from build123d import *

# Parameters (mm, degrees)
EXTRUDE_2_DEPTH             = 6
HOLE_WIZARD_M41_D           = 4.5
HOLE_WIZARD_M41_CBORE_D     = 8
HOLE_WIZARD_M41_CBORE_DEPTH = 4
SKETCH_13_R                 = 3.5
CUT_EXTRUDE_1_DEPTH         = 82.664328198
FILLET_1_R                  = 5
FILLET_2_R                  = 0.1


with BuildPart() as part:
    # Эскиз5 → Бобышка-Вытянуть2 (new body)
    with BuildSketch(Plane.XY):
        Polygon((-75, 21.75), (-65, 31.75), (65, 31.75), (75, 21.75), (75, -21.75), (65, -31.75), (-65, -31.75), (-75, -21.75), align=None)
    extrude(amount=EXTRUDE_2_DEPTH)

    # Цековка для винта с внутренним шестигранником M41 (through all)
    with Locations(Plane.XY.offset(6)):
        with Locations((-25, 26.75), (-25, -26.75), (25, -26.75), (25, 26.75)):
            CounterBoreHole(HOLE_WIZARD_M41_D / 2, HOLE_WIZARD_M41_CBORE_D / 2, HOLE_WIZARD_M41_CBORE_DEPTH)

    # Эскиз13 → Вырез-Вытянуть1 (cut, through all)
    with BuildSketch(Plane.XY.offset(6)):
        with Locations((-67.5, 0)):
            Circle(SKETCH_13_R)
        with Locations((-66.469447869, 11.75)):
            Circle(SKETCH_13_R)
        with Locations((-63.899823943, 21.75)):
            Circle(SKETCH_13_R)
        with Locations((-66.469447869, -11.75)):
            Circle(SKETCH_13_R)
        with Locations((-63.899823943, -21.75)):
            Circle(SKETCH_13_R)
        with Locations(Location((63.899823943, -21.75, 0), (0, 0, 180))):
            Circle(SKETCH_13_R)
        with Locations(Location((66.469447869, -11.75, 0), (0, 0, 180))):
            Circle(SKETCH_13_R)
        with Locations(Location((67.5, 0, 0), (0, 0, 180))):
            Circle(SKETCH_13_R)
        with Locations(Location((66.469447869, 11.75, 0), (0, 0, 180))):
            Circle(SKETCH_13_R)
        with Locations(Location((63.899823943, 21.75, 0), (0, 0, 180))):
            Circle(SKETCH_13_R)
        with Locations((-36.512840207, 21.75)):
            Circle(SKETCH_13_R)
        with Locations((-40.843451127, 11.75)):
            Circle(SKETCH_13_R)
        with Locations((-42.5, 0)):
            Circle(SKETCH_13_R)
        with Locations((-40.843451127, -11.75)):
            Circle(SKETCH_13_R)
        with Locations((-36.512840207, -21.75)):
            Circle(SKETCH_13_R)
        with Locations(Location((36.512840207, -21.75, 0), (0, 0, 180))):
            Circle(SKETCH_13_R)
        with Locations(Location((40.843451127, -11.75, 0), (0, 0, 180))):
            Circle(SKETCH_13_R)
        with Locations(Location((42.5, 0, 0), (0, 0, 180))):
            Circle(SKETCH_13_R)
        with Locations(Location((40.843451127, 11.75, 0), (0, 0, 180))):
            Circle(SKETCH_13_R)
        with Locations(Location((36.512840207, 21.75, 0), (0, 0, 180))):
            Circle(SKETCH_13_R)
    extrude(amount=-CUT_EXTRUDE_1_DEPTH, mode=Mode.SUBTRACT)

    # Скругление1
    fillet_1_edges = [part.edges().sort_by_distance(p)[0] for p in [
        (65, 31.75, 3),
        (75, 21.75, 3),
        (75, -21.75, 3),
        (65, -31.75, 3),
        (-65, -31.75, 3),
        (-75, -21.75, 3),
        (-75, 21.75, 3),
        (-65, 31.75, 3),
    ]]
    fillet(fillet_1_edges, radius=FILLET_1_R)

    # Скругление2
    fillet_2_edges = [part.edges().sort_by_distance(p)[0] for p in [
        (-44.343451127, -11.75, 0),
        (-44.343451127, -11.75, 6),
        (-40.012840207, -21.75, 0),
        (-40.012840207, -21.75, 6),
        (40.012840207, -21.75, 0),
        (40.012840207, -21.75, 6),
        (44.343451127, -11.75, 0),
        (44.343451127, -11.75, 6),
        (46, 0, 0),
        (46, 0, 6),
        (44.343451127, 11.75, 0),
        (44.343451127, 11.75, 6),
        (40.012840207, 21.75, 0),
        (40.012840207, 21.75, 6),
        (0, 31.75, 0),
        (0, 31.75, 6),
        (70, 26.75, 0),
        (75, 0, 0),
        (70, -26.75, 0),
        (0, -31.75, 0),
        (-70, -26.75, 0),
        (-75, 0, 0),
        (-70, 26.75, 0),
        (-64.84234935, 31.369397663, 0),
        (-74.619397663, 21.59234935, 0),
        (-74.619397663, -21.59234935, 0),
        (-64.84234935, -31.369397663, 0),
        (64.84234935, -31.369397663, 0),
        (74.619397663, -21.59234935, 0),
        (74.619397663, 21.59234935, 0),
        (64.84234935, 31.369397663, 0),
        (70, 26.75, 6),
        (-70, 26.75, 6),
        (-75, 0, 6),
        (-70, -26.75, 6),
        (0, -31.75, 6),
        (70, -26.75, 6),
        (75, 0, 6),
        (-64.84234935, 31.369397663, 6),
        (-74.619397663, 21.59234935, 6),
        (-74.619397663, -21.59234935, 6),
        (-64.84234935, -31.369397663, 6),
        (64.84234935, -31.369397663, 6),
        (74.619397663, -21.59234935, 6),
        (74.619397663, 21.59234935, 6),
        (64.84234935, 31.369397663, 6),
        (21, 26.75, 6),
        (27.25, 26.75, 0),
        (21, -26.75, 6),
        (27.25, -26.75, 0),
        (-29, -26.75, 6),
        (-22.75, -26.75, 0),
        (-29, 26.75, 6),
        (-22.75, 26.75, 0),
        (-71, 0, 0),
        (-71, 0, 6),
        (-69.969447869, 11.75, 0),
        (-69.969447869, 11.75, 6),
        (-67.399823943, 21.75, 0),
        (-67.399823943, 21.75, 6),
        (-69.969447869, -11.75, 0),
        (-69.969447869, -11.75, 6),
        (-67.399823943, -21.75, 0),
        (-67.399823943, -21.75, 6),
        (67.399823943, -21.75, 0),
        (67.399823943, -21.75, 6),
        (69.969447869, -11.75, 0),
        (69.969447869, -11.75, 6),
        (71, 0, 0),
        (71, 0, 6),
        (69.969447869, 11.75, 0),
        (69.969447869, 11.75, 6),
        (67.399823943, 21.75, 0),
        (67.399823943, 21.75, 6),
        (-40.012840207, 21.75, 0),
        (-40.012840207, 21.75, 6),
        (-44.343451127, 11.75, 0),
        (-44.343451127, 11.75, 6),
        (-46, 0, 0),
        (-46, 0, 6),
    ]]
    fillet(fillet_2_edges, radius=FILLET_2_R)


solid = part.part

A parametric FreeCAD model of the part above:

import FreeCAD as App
import Part
import Sketcher
from FreeCAD import Vector


def edges_at(feature, points):
    """Names of the edges that pass closest to the given points."""
    edges = feature.Shape.Edges
    near = lambda p: min(range(len(edges)), key=lambda i: edges[i].distToShape(Part.Vertex(*p))[0])
    return sorted({f"Edge{near(p) + 1}" for p in points})


def add_polygon(sketch, points):
    """Adds a closed chain of lines whose ends are joined by coincident constraints."""
    first, n = sketch.GeometryCount, len(points)
    for a, b in zip(points, points[1:] + points[:1]):
        sketch.addGeometry(Part.LineSegment(App.Vector(*a, 0), App.Vector(*b, 0)), False)
    for i in range(n):
        sketch.addConstraint(Sketcher.Constraint("Coincident", first + i, 2, first + (i + 1) % n, 1))

doc = App.newDocument("Part")
body = doc.addObject("PartDesign::Body", "Body")

sketch1 = doc.addObject("Sketcher::SketchObject", "Sketch")
body.addObject(sketch1)
sketch1.AttachmentSupport = (doc.XY_Plane, [""])
sketch1.MapMode = "FlatFace"
add_polygon(sketch1, [(-65, 32), (-75, 22), (-75, -22), (-65, -32), (65, -32), (75, -22), (75, 22), (65, 32)])
sketch1.addConstraint([
    Sketcher.Constraint("Vertical", 1),
    Sketcher.Constraint("Horizontal", 3),
    Sketcher.Constraint("Vertical", 5),
    Sketcher.Constraint("Horizontal", 7),
    Sketcher.Constraint("Symmetric", 0, 2, 4, 2, -1, 1),
    Sketcher.Constraint("Symmetric", 2, 2, 6, 2, -1, 1),
    Sketcher.Constraint("Perpendicular", 0, 2),
    Sketcher.Constraint("Perpendicular", 2, 4),
    Sketcher.Constraint("Perpendicular", 4, 6),
    Sketcher.Constraint("Horizontal", 1, 2, 4, 2),
    Sketcher.Constraint("Vertical", 3, 2, 6, 2),
    Sketcher.Constraint("DistanceX", 3, 1, 3, 2, 130.0),
    Sketcher.Constraint("DistanceY", 1, 2, 1, 1, 43.5),
    Sketcher.Constraint("DistanceX", 0, 2, -1, 1, 75.0),
])
pad1 = doc.addObject("PartDesign::Pad", "Pad")
body.addObject(pad1)
pad1.Profile = sketch1
pad1.Length = 6

sketch2 = doc.addObject("Sketcher::SketchObject", "Sketch001")
body.addObject(sketch2)
sketch2.AttachmentSupport = (doc.XY_Plane, [""])
sketch2.MapMode = "FlatFace"
sketch2.AttachmentOffset = App.Placement(Vector(0, 0, 6), App.Rotation())
sketch2.addGeometry([
    Part.Circle(Vector(-25, 26.8, 0), Vector(0, 0, 1), 2.2),
    Part.Circle(Vector(-25, -26.8, 0), Vector(0, 0, 1), 2.2),
    Part.Circle(Vector(25, -26.8, 0), Vector(0, 0, 1), 2.2),
    Part.Circle(Vector(25, 26.8, 0), Vector(0, 0, 1), 2.2),
], False)
sketch2.addConstraint([
    Sketcher.Constraint("Equal", 0, 1),
    Sketcher.Constraint("Equal", 1, 2),
    Sketcher.Constraint("Equal", 2, 3),
    Sketcher.Constraint("Symmetric", 0, 3, 2, 3, -1, 1),
    Sketcher.Constraint("Symmetric", 1, 3, 3, 3, -1, 1),
    Sketcher.Constraint("Symmetric", 1, 3, 2, 3, -2),
    Sketcher.Constraint("Diameter", 0, 4.5),
    Sketcher.Constraint("DistanceX", 0, 3, -1, 1, 25.0),
    Sketcher.Constraint("DistanceY", 1, 3, 0, 3, 53.5),
])
doc.recompute()
hole = doc.addObject("PartDesign::Hole", "Hole")
body.addObject(hole)
hole.Profile = sketch2
hole.ThreadType = "None"
hole.Diameter = 4.5
hole.DepthType = "ThroughAll"
hole.HoleCutType = "Counterbore"
hole.HoleCutDiameter = 8
hole.HoleCutDepth = 4

sketch3 = doc.addObject("Sketcher::SketchObject", "Sketch002")
body.addObject(sketch3)
sketch3.AttachmentSupport = (doc.XY_Plane, [""])
sketch3.MapMode = "FlatFace"
sketch3.AttachmentOffset = App.Placement(Vector(0, 0, 6), App.Rotation())
sketch3.addGeometry([
    Part.Circle(Vector(-67.5, 0, 0), Vector(0, 0, 1), 3.5),
    Part.Circle(Vector(-66.5, 11.8, 0), Vector(0, 0, 1), 3.5),
    Part.Circle(Vector(-63.9, 21.8, 0), Vector(0, 0, 1), 3.5),
    Part.Circle(Vector(-66.5, -11.8, 0), Vector(0, 0, 1), 3.5),
    Part.Circle(Vector(-63.9, -21.8, 0), Vector(0, 0, 1), 3.5),
    Part.Circle(Vector(63.9, -21.8, 0), Vector(0, 0, 1), 3.5),
    Part.Circle(Vector(66.5, -11.8, 0), Vector(0, 0, 1), 3.5),
    Part.Circle(Vector(67.5, 0, 0), Vector(0, 0, 1), 3.5),
    Part.Circle(Vector(66.5, 11.8, 0), Vector(0, 0, 1), 3.5),
    Part.Circle(Vector(63.9, 21.8, 0), Vector(0, 0, 1), 3.5),
    Part.Circle(Vector(-36.5, 21.8, 0), Vector(0, 0, 1), 3.5),
    Part.Circle(Vector(-40.8, 11.8, 0), Vector(0, 0, 1), 3.5),
    Part.Circle(Vector(-42.5, 0, 0), Vector(0, 0, 1), 3.5),
    Part.Circle(Vector(-40.8, -11.8, 0), Vector(0, 0, 1), 3.5),
    Part.Circle(Vector(-36.5, -21.8, 0), Vector(0, 0, 1), 3.5),
    Part.Circle(Vector(36.5, -21.8, 0), Vector(0, 0, 1), 3.5),
    Part.Circle(Vector(40.8, -11.8, 0), Vector(0, 0, 1), 3.5),
    Part.Circle(Vector(42.5, 0, 0), Vector(0, 0, 1), 3.5),
    Part.Circle(Vector(40.8, 11.8, 0), Vector(0, 0, 1), 3.5),
    Part.Circle(Vector(36.5, 21.8, 0), Vector(0, 0, 1), 3.5),
], False)
sketch3.addConstraint([
    Sketcher.Constraint("Equal", 0, 1),
    Sketcher.Constraint("Equal", 1, 2),
    Sketcher.Constraint("Equal", 2, 3),
    Sketcher.Constraint("Equal", 3, 4),
    Sketcher.Constraint("Equal", 4, 5),
    Sketcher.Constraint("Equal", 5, 6),
    Sketcher.Constraint("Equal", 6, 7),
    Sketcher.Constraint("Equal", 7, 8),
    Sketcher.Constraint("Equal", 8, 9),
    Sketcher.Constraint("Equal", 9, 10),
    Sketcher.Constraint("Equal", 10, 11),
    Sketcher.Constraint("Equal", 11, 12),
    Sketcher.Constraint("Equal", 12, 13),
    Sketcher.Constraint("Equal", 13, 14),
    Sketcher.Constraint("Equal", 14, 15),
    Sketcher.Constraint("Equal", 15, 16),
    Sketcher.Constraint("Equal", 16, 17),
    Sketcher.Constraint("Equal", 17, 18),
    Sketcher.Constraint("Equal", 18, 19),
    Sketcher.Constraint("Symmetric", 2, 3, 5, 3, -1, 1),
    Sketcher.Constraint("Symmetric", 1, 3, 6, 3, -1, 1),
    Sketcher.Constraint("Symmetric", 0, 3, 7, 3, -1, 1),
    Sketcher.Constraint("Symmetric", 3, 3, 8, 3, -1, 1),
    Sketcher.Constraint("Symmetric", 4, 3, 9, 3, -1, 1),
    Sketcher.Constraint("Symmetric", 10, 3, 15, 3, -1, 1),
    Sketcher.Constraint("Symmetric", 11, 3, 16, 3, -1, 1),
    Sketcher.Constraint("Symmetric", 12, 3, 17, 3, -1, 1),
    Sketcher.Constraint("Symmetric", 13, 3, 18, 3, -1, 1),
    Sketcher.Constraint("Symmetric", 14, 3, 19, 3, -1, 1),
    Sketcher.Constraint("Symmetric", 4, 3, 5, 3, -2),
    Sketcher.Constraint("Symmetric", 3, 3, 6, 3, -2),
    Sketcher.Constraint("Symmetric", 14, 3, 15, 3, -2),
    Sketcher.Constraint("Symmetric", 13, 3, 16, 3, -2),
    Sketcher.Constraint("PointOnObject", 0, 3, -1),
    Sketcher.Constraint("PointOnObject", 12, 3, -1),
    Sketcher.Constraint("Horizontal", 9, 3, 10, 3),
    Sketcher.Constraint("Horizontal", 8, 3, 11, 3),
    Sketcher.Constraint("Diameter", 0, 7.0),
    Sketcher.Constraint("DistanceY", 1, 3, 2, 3, 10.0),
    Sketcher.Constraint("DistanceX", 0, 3, 12, 3, 25.0),
    Sketcher.Constraint("DistanceX", 0, 3, -1, 1, 67.5),
    Sketcher.Constraint("DistanceY", 3, 3, 1, 3, 23.5),
    Sketcher.Constraint("DistanceX", 10, 3, -1, 1, 36.51284),
    Sketcher.Constraint("DistanceX", 11, 3, -1, 1, 40.843451),
    Sketcher.Constraint("DistanceX", 3, 3, 5, 3, 130.369272),
    Sketcher.Constraint("DistanceX", 1, 3, -1, 1, 66.469448),
])
pocket1 = doc.addObject("PartDesign::Pocket", "Pocket")
body.addObject(pocket1)
pocket1.Profile = sketch3
pocket1.Type = "ThroughAll"
doc.recompute()

fillet = doc.addObject("PartDesign::Fillet", "Fillet")
body.addObject(fillet)
fillet.Base = (pocket1, edges_at(pocket1, [
    (65, 31.75, 3),
    (75, 21.75, 3),
    (75, -21.75, 3),
    (65, -31.75, 3),
    (-65, -31.75, 3),
    (-75, -21.75, 3),
    (-75, 21.75, 3),
    (-65, 31.75, 3),
]))
fillet.Radius = 5
doc.recompute()

fillet2 = doc.addObject("PartDesign::Fillet", "Fillet001")
body.addObject(fillet2)
fillet2.Base = (fillet, edges_at(fillet, [
    (-44.343, -11.75, 0),
    (-44.343, -11.75, 6),
    (-40.013, -21.75, 0),
    (-40.013, -21.75, 6),
    (40.013, -21.75, 0),
    (40.013, -21.75, 6),
    (44.343, -11.75, 0),
    (44.343, -11.75, 6),
    (46, 0, 0),
    (46, 0, 6),
    (44.343, 11.75, 0),
    (44.343, 11.75, 6),
    (40.013, 21.75, 0),
    (40.013, 21.75, 6),
    (0, 31.75, 0),
    (0, 31.75, 6),
    (70, 26.75, 0),
    (75, 0, 0),
    (70, -26.75, 0),
    (0, -31.75, 0),
    (-70, -26.75, 0),
    (-75, 0, 0),
    (-70, 26.75, 0),
    (-64.842, 31.369, 0),
    (-74.619, 21.592, 0),
    (-74.619, -21.592, 0),
    (-64.842, -31.369, 0),
    (64.842, -31.369, 0),
    (74.619, -21.592, 0),
    (74.619, 21.592, 0),
    (64.842, 31.369, 0),
    (70, 26.75, 6),
    (-70, 26.75, 6),
    (-75, 0, 6),
    (-70, -26.75, 6),
    (0, -31.75, 6),
    (70, -26.75, 6),
    (75, 0, 6),
    (-64.842, 31.369, 6),
    (-74.619, 21.592, 6),
    (-74.619, -21.592, 6),
    (-64.842, -31.369, 6),
    (64.842, -31.369, 6),
    (74.619, -21.592, 6),
    (74.619, 21.592, 6),
    (64.842, 31.369, 6),
    (21, 26.75, 6),
    (27.25, 26.75, 0),
    (21, -26.75, 6),
    (27.25, -26.75, 0),
    (-29, -26.75, 6),
    (-22.75, -26.75, 0),
    (-29, 26.75, 6),
    (-22.75, 26.75, 0),
    (-71, 0, 0),
    (-71, 0, 6),
    (-69.969, 11.75, 0),
    (-69.969, 11.75, 6),
    (-67.4, 21.75, 0),
    (-67.4, 21.75, 6),
    (-69.969, -11.75, 0),
    (-69.969, -11.75, 6),
    (-67.4, -21.75, 0),
    (-67.4, -21.75, 6),
    (67.4, -21.75, 0),
    (67.4, -21.75, 6),
    (69.969, -11.75, 0),
    (69.969, -11.75, 6),
    (71, 0, 0),
    (71, 0, 6),
    (69.969, 11.75, 0),
    (69.969, 11.75, 6),
    (67.4, 21.75, 0),
    (67.4, 21.75, 6),
    (-40.013, 21.75, 0),
    (-40.013, 21.75, 6),
    (-44.343, 11.75, 0),
    (-44.343, 11.75, 6),
    (-46, 0, 0),
    (-46, 0, 6),
]))
fillet2.Radius = 0.1

doc.recompute()
